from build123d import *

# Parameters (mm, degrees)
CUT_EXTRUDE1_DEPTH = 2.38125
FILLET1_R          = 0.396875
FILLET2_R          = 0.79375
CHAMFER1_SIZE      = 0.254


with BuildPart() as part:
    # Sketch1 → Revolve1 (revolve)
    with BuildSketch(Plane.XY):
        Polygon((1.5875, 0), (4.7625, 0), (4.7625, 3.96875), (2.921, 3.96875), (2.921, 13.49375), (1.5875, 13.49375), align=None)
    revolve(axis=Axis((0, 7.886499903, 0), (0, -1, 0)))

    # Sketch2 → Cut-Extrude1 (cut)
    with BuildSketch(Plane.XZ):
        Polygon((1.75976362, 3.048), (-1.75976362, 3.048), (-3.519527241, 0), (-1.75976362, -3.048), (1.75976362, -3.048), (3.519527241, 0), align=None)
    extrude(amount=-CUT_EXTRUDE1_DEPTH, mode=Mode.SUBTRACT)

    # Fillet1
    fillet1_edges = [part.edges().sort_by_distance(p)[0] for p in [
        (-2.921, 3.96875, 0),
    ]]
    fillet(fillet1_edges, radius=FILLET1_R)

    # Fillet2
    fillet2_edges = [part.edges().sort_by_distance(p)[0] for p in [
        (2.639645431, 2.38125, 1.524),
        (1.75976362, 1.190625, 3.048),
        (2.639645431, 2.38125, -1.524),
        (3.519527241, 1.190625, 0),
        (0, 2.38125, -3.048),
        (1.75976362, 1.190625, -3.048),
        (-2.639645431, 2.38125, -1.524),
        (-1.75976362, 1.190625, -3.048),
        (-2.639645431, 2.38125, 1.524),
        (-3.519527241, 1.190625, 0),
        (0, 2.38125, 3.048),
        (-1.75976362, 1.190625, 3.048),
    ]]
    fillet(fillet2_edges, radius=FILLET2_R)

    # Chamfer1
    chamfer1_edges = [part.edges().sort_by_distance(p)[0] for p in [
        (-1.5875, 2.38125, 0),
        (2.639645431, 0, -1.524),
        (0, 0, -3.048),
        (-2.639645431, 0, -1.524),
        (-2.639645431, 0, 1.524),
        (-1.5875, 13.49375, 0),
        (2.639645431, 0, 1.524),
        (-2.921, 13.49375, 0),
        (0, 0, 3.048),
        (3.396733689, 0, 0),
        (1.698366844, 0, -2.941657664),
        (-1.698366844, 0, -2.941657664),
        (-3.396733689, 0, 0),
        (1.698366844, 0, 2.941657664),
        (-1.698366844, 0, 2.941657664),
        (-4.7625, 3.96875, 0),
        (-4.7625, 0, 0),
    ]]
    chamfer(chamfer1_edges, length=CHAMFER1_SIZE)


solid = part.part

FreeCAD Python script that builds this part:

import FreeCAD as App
import Part
import Sketcher

V = App.Vector
Q = App.Units.Quantity


def edges_at(feature, points):
    """Names of the edges that pass closest to the given points."""
    edges = feature.Shape.Edges
    near = lambda p: min(range(len(edges)), key=lambda i: edges[i].distToShape(Part.Vertex(*p))[0])
    return sorted({f"Edge{near(p) + 1}" for p in points})


def add_polygon(sketch, points):
    """Adds a closed chain of lines whose ends are joined by coincident constraints."""
    first, n = sketch.GeometryCount, len(points)
    for a, b in zip(points, points[1:] + points[:1]):
        sketch.addGeometry(Part.LineSegment(App.Vector(*a, 0), App.Vector(*b, 0)), False)
    for i in range(n):
        sketch.addConstraint(Sketcher.Constraint("Coincident", first + i, 2, first + (i + 1) % n, 1))

doc = App.newDocument("Part")
params = doc.addObject("Spreadsheet::Sheet", "Params")
for row, (alias, value) in enumerate([
    ("sketch1_width", "0.125 in"),
    ("sketch1_height", "0.15625 in"),
    ("sketch1_height2", "0.375 in"),
    ("revolution_angle", "360 deg"),
    ("pocket1_length", "0.09375 in"),
    ("fillet_radius", "0.015625 in"),
    ("fillet2_radius", "0.03125 in"),
    ("chamfer_size", "0.01 in"),
], start=1):
    params.set(f"A{row}", alias)
    params.set(f"B{row}", "=" + value)
    params.setAlias(f"B{row}", alias)

body = doc.addObject("PartDesign::Body", "Body")

sketch1 = body.newObject("Sketcher::SketchObject", "Sketch")
sketch1.AttachmentSupport = (doc.getObject("XY_Plane"), [""])
sketch1.MapMode = "FlatFace"
add_polygon(sketch1, [(1.6, 0), (4.8, 0), (4.8, 4), (2.9, 4), (2.9, 13.5), (1.6, 13.5)])
sketch1.addConstraint([
    Sketcher.Constraint("Horizontal", 0),
    Sketcher.Constraint("Vertical", 1),
    Sketcher.Constraint("Horizontal", 2),
    Sketcher.Constraint("Vertical", 3),
    Sketcher.Constraint("Horizontal", 4),
    Sketcher.Constraint("Vertical", 5),
    Sketcher.Constraint("PointOnObject", 0, 2, -1),
    Sketcher.Constraint("DistanceX", 0, 1, 0, 2, Q("0.125 in")),
    Sketcher.Constraint("DistanceY", 1, 1, 1, 2, Q("0.15625 in")),
    Sketcher.Constraint("DistanceY", 3, 1, 3, 2, Q("0.375 in")),
    Sketcher.Constraint("DistanceX", 2, 2, 2, 1, Q("0.0725 in")),
    Sketcher.Constraint("DistanceX", -1, 1, 0, 2, Q("0.1875 in")),
])
sketch1.setExpression("Constraints[13]", "Params.sketch1_width")
sketch1.setExpression("Constraints[14]", "Params.sketch1_height")
sketch1.setExpression("Constraints[15]", "Params.sketch1_height2")
revolution = body.newObject("PartDesign::Revolution", "Revolution")
revolution.Profile = sketch1
revolution.ReferenceAxis = (sketch1, ["V_Axis"])
revolution.setExpression("Angle", "Params.revolution_angle")

sketch2 = body.newObject("Sketcher::SketchObject", "Sketch001")
sketch2.AttachmentSupport = (doc.getObject("XZ_Plane"), [""])
sketch2.MapMode = "FlatFace"
add_polygon(sketch2, [(1.8, 3), (-1.8, 3), (-3.5, 0), (-1.8, -3), (1.8, -3), (3.5, 0)])
sketch2.addConstraint([
    Sketcher.Constraint("Horizontal", 0),
    Sketcher.Constraint("Horizontal", 3),
    Sketcher.Constraint("Symmetric", 0, 2, 3, 2, -1, 1),
    Sketcher.Constraint("Symmetric", 1, 2, 4, 2, -1, 1),
    Sketcher.Constraint("PointOnObject", 1, 2, -1),
    Sketcher.Constraint("Parallel", 2, 5),
    Sketcher.Constraint("Vertical", 0, 2, 2, 2),
    Sketcher.Constraint("Angle", 1, Q("-120 deg")),
    Sketcher.Constraint("DistanceY", -1, 1, 0, 2, Q("0.12 in")),
    Sketcher.Constraint("DistanceX", 0, 2, 0, 1, 3.519527),
])
pocket1 = body.newObject("PartDesign::Pocket", "Pocket")
pocket1.Profile = sketch2
pocket1.setExpression("Length", "Params.pocket1_length")
doc.recompute()

fillet = body.newObject("PartDesign::Fillet", "Fillet")
fillet.Base = (pocket1, edges_at(pocket1, [(-2.921, 3.969, 0)]))
fillet.setExpression("Radius", "Params.fillet_radius")
doc.recompute()

fillet2 = body.newObject("PartDesign::Fillet", "Fillet001")
fillet2.Base = (fillet, edges_at(fillet, [
    (2.64, 2.381, 1.524),
    (1.76, 1.191, 3.048),
    (2.64, 2.381, -1.524),
    (3.52, 1.191, 0),
    (0, 2.381, -3.048),
    (1.76, 1.191, -3.048),
    (-2.64, 2.381, -1.524),
    (-1.76, 1.191, -3.048),
    (-2.64, 2.381, 1.524),
    (-3.52, 1.191, 0),
    (0, 2.381, 3.048),
    (-1.76, 1.191, 3.048),
]))
fillet2.setExpression("Radius", "Params.fillet2_radius")
doc.recompute()

chamfer = body.newObject("PartDesign::Chamfer", "Chamfer")
chamfer.Base = (fillet2, edges_at(fillet2, [
    (-1.587, 2.381, 0),
    (2.64, 0, -1.524),
    (0, 0, -3.048),
    (-2.64, 0, -1.524),
    (-2.64, 0, 1.524),
    (-1.587, 13.494, 0),
    (2.64, 0, 1.524),
    (-2.921, 13.494, 0),
    (0, 0, 3.048),
    (3.397, 0, 0),
    (1.698, 0, -2.942),
    (-1.698, 0, -2.942),
    (-3.397, 0, 0),
    (1.698, 0, 2.942),
    (-1.698, 0, 2.942),
    (-4.763, 3.969, 0),
    (-4.763, 0, 0),
]))
chamfer.setExpression("Size", "Params.chamfer_size")

doc.recompute()
